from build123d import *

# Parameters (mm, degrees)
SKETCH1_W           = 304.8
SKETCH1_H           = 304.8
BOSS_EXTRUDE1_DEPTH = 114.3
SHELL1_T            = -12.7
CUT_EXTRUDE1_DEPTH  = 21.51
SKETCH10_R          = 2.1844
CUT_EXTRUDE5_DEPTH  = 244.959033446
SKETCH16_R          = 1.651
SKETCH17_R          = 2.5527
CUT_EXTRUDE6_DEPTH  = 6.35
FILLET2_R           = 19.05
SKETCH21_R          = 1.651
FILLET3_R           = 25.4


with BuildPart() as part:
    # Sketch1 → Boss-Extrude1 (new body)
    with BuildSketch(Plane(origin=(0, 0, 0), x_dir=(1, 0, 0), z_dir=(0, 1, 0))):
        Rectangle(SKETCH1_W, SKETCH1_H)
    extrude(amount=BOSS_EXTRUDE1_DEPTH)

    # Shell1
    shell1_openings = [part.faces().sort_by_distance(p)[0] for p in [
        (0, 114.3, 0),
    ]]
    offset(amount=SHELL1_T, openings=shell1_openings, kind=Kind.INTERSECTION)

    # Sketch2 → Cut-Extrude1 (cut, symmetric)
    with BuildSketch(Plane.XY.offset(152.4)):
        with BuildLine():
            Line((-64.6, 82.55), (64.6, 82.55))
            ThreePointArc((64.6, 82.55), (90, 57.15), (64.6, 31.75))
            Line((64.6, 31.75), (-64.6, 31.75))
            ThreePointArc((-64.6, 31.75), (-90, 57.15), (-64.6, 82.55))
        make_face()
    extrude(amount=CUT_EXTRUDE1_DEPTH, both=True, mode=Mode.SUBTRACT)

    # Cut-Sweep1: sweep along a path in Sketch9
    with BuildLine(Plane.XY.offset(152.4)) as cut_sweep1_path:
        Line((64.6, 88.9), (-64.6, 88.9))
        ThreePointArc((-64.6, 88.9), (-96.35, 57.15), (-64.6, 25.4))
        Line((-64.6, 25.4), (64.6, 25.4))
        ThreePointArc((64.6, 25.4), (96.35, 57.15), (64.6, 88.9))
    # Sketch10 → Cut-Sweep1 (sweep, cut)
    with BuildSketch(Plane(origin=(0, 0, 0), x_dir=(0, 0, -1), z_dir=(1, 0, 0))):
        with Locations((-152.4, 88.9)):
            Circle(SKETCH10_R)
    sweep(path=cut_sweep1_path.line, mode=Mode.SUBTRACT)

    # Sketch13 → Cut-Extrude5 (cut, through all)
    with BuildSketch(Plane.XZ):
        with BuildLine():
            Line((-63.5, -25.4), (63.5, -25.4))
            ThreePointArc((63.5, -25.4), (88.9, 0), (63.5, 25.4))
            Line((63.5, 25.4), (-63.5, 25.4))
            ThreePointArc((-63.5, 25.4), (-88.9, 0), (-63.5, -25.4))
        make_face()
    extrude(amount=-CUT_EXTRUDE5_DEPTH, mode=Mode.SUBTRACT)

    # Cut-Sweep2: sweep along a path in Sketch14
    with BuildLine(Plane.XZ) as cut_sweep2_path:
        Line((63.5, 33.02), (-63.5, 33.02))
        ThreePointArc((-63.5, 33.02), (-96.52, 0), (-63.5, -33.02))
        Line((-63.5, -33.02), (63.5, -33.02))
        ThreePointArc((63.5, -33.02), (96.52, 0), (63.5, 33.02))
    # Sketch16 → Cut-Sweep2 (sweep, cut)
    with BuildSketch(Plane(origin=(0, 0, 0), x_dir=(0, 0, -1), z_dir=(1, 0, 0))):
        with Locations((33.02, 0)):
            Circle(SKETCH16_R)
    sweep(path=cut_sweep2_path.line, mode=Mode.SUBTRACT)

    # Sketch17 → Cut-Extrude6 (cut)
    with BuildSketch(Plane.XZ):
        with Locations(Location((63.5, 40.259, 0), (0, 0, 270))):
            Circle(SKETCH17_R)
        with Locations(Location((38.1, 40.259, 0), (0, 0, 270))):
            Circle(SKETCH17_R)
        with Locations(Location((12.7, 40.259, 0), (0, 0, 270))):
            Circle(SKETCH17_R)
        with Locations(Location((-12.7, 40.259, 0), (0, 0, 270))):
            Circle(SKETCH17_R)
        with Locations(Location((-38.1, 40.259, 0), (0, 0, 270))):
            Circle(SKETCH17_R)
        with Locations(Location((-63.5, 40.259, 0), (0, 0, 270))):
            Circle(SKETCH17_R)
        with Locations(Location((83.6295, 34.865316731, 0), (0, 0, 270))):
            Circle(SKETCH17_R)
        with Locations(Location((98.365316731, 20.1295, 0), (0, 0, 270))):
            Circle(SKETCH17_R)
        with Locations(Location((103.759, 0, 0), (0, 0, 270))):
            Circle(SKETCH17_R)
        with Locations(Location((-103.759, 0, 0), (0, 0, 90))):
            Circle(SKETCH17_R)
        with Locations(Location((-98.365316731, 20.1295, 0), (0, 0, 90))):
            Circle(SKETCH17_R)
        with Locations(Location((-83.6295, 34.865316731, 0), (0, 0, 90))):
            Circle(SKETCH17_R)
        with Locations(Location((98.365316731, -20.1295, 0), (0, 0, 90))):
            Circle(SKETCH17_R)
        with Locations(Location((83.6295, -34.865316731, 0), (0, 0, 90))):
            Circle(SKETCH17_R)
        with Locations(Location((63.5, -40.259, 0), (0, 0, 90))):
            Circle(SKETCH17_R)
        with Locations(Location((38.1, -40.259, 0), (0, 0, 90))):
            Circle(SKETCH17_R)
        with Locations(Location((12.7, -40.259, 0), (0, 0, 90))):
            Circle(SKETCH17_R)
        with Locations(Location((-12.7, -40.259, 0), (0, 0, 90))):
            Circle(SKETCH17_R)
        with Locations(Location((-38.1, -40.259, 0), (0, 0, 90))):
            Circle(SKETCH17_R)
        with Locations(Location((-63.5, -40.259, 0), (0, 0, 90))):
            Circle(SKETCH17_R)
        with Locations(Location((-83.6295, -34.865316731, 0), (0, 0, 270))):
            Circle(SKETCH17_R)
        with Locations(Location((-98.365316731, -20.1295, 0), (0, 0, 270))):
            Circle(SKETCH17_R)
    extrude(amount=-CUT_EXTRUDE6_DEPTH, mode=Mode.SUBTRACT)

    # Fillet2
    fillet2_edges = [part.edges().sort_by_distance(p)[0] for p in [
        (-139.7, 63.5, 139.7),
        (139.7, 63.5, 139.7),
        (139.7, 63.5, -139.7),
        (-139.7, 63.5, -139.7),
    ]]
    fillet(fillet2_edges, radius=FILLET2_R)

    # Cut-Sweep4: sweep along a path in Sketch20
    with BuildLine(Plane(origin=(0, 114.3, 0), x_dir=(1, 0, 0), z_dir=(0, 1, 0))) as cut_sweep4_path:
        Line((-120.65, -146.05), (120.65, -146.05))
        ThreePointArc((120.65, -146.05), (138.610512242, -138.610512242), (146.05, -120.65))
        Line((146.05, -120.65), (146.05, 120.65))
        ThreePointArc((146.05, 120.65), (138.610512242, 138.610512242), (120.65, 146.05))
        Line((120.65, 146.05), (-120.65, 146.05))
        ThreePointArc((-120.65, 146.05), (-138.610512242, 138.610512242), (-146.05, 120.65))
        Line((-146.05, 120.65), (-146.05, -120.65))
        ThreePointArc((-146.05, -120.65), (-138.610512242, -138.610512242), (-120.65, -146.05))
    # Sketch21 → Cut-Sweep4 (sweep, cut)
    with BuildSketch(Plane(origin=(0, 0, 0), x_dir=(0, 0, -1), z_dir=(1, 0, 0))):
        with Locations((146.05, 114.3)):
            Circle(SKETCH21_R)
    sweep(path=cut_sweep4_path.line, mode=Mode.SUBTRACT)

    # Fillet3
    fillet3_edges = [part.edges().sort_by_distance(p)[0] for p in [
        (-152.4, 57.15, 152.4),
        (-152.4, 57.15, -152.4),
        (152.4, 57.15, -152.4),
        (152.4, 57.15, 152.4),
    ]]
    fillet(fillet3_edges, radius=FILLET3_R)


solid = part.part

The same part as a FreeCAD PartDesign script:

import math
import FreeCAD as App
import Part
import Sketcher

V = App.Vector
Q = App.Units.Quantity


def edges_at(feature, points):
    """Names of the edges that pass closest to the given points."""
    edges = feature.Shape.Edges
    near = lambda p: min(range(len(edges)), key=lambda i: edges[i].distToShape(Part.Vertex(*p))[0])
    return sorted({f"Edge{near(p) + 1}" for p in points})


def faces_at(feature, points):
    """Names of the faces that lie closest to the given points."""
    faces = feature.Shape.Faces
    near = lambda p: min(range(len(faces)), key=lambda i: faces[i].distToShape(Part.Vertex(*p))[0])
    return sorted({f"Face{near(p) + 1}" for p in points})

doc = App.newDocument("Part")
body = doc.addObject("PartDesign::Body", "Body")

# Sketch on XZ plane
sketch1 = body.newObject("Sketcher::SketchObject", "Sketch")
sketch1.AttachmentSupport = (doc.getObject("XZ_Plane"), [""])
sketch1.MapMode = "FlatFace"
sketch1.addGeometry([
    Part.LineSegment(V(-152.4, -152.4, 0), V(-152.4, 152.4, 0)),
    Part.LineSegment(V(-152.4, 152.4, 0), V(152.4, 152.4, 0)),
    Part.LineSegment(V(152.4, 152.4, 0), V(152.4, -152.4, 0)),
    Part.LineSegment(V(152.4, -152.4, 0), V(-152.4, -152.4, 0)),
], False)
sketch1.addConstraint([
    Sketcher.Constraint("Coincident", 0, 2, 1, 1),
    Sketcher.Constraint("Coincident", 1, 2, 2, 1),
    Sketcher.Constraint("Coincident", 2, 2, 3, 1),
    Sketcher.Constraint("Coincident", 3, 2, 0, 1),
    Sketcher.Constraint("Vertical", 0),
    Sketcher.Constraint("Horizontal", 1),
    Sketcher.Constraint("Vertical", 2),
    Sketcher.Constraint("Horizontal", 3),
    Sketcher.Constraint("Symmetric", 0, 2, 2, 2, -1, 1),
    Sketcher.Constraint("Equal", 3, 0),
    Sketcher.Constraint("DistanceX", 1, 1, 1, 2, Q("12 in")),
])
pad1 = body.newObject("PartDesign::Pad", "Pad")
pad1.Profile = sketch1
pad1.Length = Q("4.5 in")
pad1.Reversed = True
doc.recompute()

thickness = body.newObject("PartDesign::Thickness", "Thickness")
thickness.Base = (pad1, faces_at(pad1, [(0, 114.3, 0)]))
thickness.Value = Q("0.5 in")
thickness.Reversed = True
thickness.Join = "Intersection"

# Sketch on XY plane
sketch2 = body.newObject("Sketcher::SketchObject", "Sketch001")
sketch2.AttachmentSupport = (doc.getObject("XY_Plane"), [""])
sketch2.MapMode = "FlatFace"
sketch2.AttachmentOffset = App.Placement(V(0, 0, 6 * 25.4), App.Rotation())
sketch2.addGeometry([
    Part.LineSegment(V(64.6, 82.55, 0), V(-64.6, 82.55, 0)),
    Part.ArcOfCircle(Part.Circle(V(-64.6, 57.15, 0), V(0, 0, 1), 25.4), math.radians(90), math.radians(270)),
    Part.LineSegment(V(-64.6, 31.75, 0), V(64.6, 31.75, 0)),
    Part.ArcOfCircle(Part.Circle(V(64.6, 57.15, 0), V(0, 0, 1), 25.4), math.radians(-90), math.radians(90)),
], False)
sketch2.addConstraint([
    Sketcher.Constraint("Tangent", 0, 2, 1, 1),
    Sketcher.Constraint("Tangent", 1, 2, 2, 1),
    Sketcher.Constraint("Tangent", 2, 2, 3, 1),
    Sketcher.Constraint("Tangent", 3, 2, 0, 1),
    Sketcher.Constraint("Horizontal", 0),
    Sketcher.Constraint("Horizontal", 2),
    Sketcher.Constraint("Radius", 1, Q("1 in")),
    Sketcher.Constraint("DistanceY", -1, 1, 1, 3, Q("2.25 in")),
    Sketcher.Constraint("DistanceX", 0, 2, 0, 1, Q("129.2 mm")),
    Sketcher.Constraint("DistanceX", 1, 3, -1, 1, Q("64.6 mm")),
])
pocket1 = body.newObject("PartDesign::Pocket", "Pocket")
pocket1.Profile = sketch2
pocket1.Length = 43.02
pocket1.Midplane = True

# Sketch on YZ plane
sketch3 = body.newObject("Sketcher::SketchObject", "Sketch002")
sketch3.AttachmentSupport = (doc.getObject("YZ_Plane"), [""])
sketch3.MapMode = "FlatFace"
sketch3.addGeometry(Part.Circle(V(88.9, 152.4, 0), V(0, 0, 1), 2.1844), False)
sketch3.addConstraint([
    Sketcher.Constraint("Diameter", 0, Q("0.172 in")),
    Sketcher.Constraint("DistanceY", -1, 1, 0, 3, Q("6 in")),
    Sketcher.Constraint("DistanceX", -1, 1, 0, 3, Q("3.5 in")),
])

# Sketch on XY plane
sketch4 = body.newObject("Sketcher::SketchObject", "Sketch003")
sketch4.AttachmentSupport = (doc.getObject("XY_Plane"), [""])
sketch4.MapMode = "FlatFace"
sketch4.AttachmentOffset = App.Placement(V(0, 0, 6 * 25.4), App.Rotation())
sketch4.addGeometry([
    Part.LineSegment(V(64.6, 88.9, 0), V(-64.6, 88.9, 0)),
    Part.ArcOfCircle(Part.Circle(V(-64.6, 57.15, 0), V(0, 0, 1), 31.75), math.radians(90), math.radians(270)),
    Part.LineSegment(V(-64.6, 25.4, 0), V(64.6, 25.4, 0)),
    Part.ArcOfCircle(Part.Circle(V(64.6, 57.15, 0), V(0, 0, 1), 31.75), math.radians(-90), math.radians(90)),
], False)
sketch4.addConstraint([
    Sketcher.Constraint("Tangent", 0, 2, 1, 1),
    Sketcher.Constraint("Tangent", 1, 2, 2, 1),
    Sketcher.Constraint("Tangent", 2, 2, 3, 1),
    Sketcher.Constraint("Tangent", 3, 2, 0, 1),
    Sketcher.Constraint("Horizontal", 0),
    Sketcher.Constraint("Horizontal", 2),
    Sketcher.Constraint("Radius", 1, Q("1.25 in")),
    Sketcher.Constraint("DistanceY", -1, 1, 1, 2, Q("1 in")),
    Sketcher.Constraint("DistanceX", 0, 2, 0, 1, Q("129.2 mm")),
    Sketcher.Constraint("DistanceX", 1, 3, -1, 1, Q("64.6 mm")),
])
doc.recompute()

subtractivepipe = body.newObject("PartDesign::SubtractivePipe", "SubtractivePipe")
subtractivepipe.Profile = sketch3
subtractivepipe.Spine = (sketch4, ["Edge1", "Edge2", "Edge3", "Edge4"])

# Sketch on XZ plane
sketch5 = body.newObject("Sketcher::SketchObject", "Sketch004")
sketch5.AttachmentSupport = (doc.getObject("XZ_Plane"), [""])
sketch5.MapMode = "FlatFace"
sketch5.addGeometry([
    Part.LineSegment(V(-63.5, -25.4, 0), V(63.5, -25.4, 0)),
    Part.ArcOfCircle(Part.Circle(V(63.5, 0, 0), V(0, 0, 1), 25.4), math.radians(-90), math.radians(90)),
    Part.LineSegment(V(63.5, 25.4, 0), V(-63.5, 25.4, 0)),
    Part.ArcOfCircle(Part.Circle(V(-63.5, 0, 0), V(0, 0, 1), 25.4), math.radians(90), math.radians(270)),
], False)
sketch5.addConstraint([
    Sketcher.Constraint("Tangent", 0, 2, 1, 1),
    Sketcher.Constraint("Tangent", 1, 2, 2, 1),
    Sketcher.Constraint("Tangent", 2, 2, 3, 1),
    Sketcher.Constraint("Tangent", 3, 2, 0, 1),
    Sketcher.Constraint("Horizontal", 0),
    Sketcher.Constraint("Horizontal", 2),
    Sketcher.Constraint("Symmetric", 1, 3, 3, 3, -1, 1),
    Sketcher.Constraint("Radius", 1, Q("1 in")),
    Sketcher.Constraint("DistanceX", 0, 1, 0, 2, Q("5 in")),
])
pocket2 = body.newObject("PartDesign::Pocket", "Pocket001")
pocket2.Profile = sketch5
pocket2.Type = "ThroughAll"

# Sketch on YZ plane
sketch6 = body.newObject("Sketcher::SketchObject", "Sketch005")
sketch6.AttachmentSupport = (doc.getObject("YZ_Plane"), [""])
sketch6.MapMode = "FlatFace"
sketch6.addGeometry(Part.Circle(V(0, -33.02, 0), V(0, 0, 1), 1.651), False)
sketch6.addConstraint([
    Sketcher.Constraint("PointOnObject", 0, 3, -2),
    Sketcher.Constraint("Diameter", 0, Q("0.13 in")),
    Sketcher.Constraint("DistanceY", 0, 3, -1, 1, Q("1.3 in")),
])

# Sketch on XZ plane
sketch7 = body.newObject("Sketcher::SketchObject", "Sketch006")
sketch7.AttachmentSupport = (doc.getObject("XZ_Plane"), [""])
sketch7.MapMode = "FlatFace"
sketch7.addGeometry([
    Part.LineSegment(V(63.5, 33.02, 0), V(-63.5, 33.02, 0)),
    Part.ArcOfCircle(Part.Circle(V(-63.5, 0, 0), V(0, 0, 1), 33.02), math.radians(90), math.radians(270)),
    Part.LineSegment(V(-63.5, -33.02, 0), V(63.5, -33.02, 0)),
    Part.ArcOfCircle(Part.Circle(V(63.5, 0, 0), V(0, 0, 1), 33.02), math.radians(-90), math.radians(90)),
], False)
sketch7.addConstraint([
    Sketcher.Constraint("Tangent", 0, 2, 1, 1),
    Sketcher.Constraint("Tangent", 1, 2, 2, 1),
    Sketcher.Constraint("Tangent", 2, 2, 3, 1),
    Sketcher.Constraint("Tangent", 3, 2, 0, 1),
    Sketcher.Constraint("Horizontal", 0),
    Sketcher.Constraint("Horizontal", 2),
    Sketcher.Constraint("Symmetric", 1, 3, 3, 3, -1, 1),
    Sketcher.Constraint("Radius", 1, Q("1.3 in")),
    Sketcher.Constraint("DistanceX", 0, 2, 0, 1, Q("5 in")),
])
doc.recompute()

subtractivepipe2 = body.newObject("PartDesign::SubtractivePipe", "SubtractivePipe001")
subtractivepipe2.Profile = sketch6
subtractivepipe2.Spine = (sketch7, ["Edge1", "Edge2", "Edge3", "Edge4"])

# Sketch on XZ plane
sketch8 = body.newObject("Sketcher::SketchObject", "Sketch007")
sketch8.AttachmentSupport = (doc.getObject("XZ_Plane"), [""])
sketch8.MapMode = "FlatFace"
sketch8.addGeometry([
    Part.Circle(V(63.5, 40.259, 0), V(0, 0, 1), 2.5527),  # 0
    Part.Circle(V(38.1, 40.259, 0), V(0, 0, 1), 2.5527),  # 1
    Part.Circle(V(12.7, 40.259, 0), V(0, 0, 1), 2.5527),  # 2
    Part.Circle(V(-12.7, 40.259, 0), V(0, 0, 1), 2.5527),  # 3
    Part.Circle(V(-38.1, 40.259, 0), V(0, 0, 1), 2.5527),  # 4
    Part.Circle(V(-63.5, 40.259, 0), V(0, 0, 1), 2.5527),  # 5
    Part.Circle(V(83.6295, 34.865317, 0), V(0, 0, 1), 2.5527),  # 6
    Part.Circle(V(98.365317, 20.1295, 0), V(0, 0, 1), 2.5527),  # 7
    Part.Circle(V(103.759, 0, 0), V(0, 0, 1), 2.5527),  # 8
    Part.Circle(V(-103.759, 0, 0), V(0, 0, 1), 2.5527),  # 9
    Part.Circle(V(-98.365317, 20.1295, 0), V(0, 0, 1), 2.5527),  # 10
    Part.Circle(V(-83.6295, 34.865317, 0), V(0, 0, 1), 2.5527),  # 11
    Part.Circle(V(98.365317, -20.1295, 0), V(0, 0, 1), 2.5527),  # 12
    Part.Circle(V(83.6295, -34.865317, 0), V(0, 0, 1), 2.5527),  # 13
    Part.Circle(V(63.5, -40.259, 0), V(0, 0, 1), 2.5527),  # 14
    Part.Circle(V(38.1, -40.259, 0), V(0, 0, 1), 2.5527),  # 15
    Part.Circle(V(12.7, -40.259, 0), V(0, 0, 1), 2.5527),  # 16
    Part.Circle(V(-12.7, -40.259, 0), V(0, 0, 1), 2.5527),  # 17
    Part.Circle(V(-38.1, -40.259, 0), V(0, 0, 1), 2.5527),  # 18
    Part.Circle(V(-63.5, -40.259, 0), V(0, 0, 1), 2.5527),  # 19
    Part.Circle(V(-83.6295, -34.865317, 0), V(0, 0, 1), 2.5527),  # 20
    Part.Circle(V(-98.365317, -20.1295, 0), V(0, 0, 1), 2.5527),  # 21
], False)
sketch8.addConstraint([
    Sketcher.Constraint("Equal", 0, 1),
    Sketcher.Constraint("Equal", 1, 2),
    Sketcher.Constraint("Equal", 2, 3),
    Sketcher.Constraint("Equal", 3, 4),
    Sketcher.Constraint("Equal", 4, 5),
    Sketcher.Constraint("Equal", 5, 6),
    Sketcher.Constraint("Equal", 6, 7),
    Sketcher.Constraint("Equal", 7, 8),
    Sketcher.Constraint("Equal", 8, 9),
    Sketcher.Constraint("Equal", 9, 10),
    Sketcher.Constraint("Equal", 10, 11),
    Sketcher.Constraint("Equal", 11, 12),
    Sketcher.Constraint("Equal", 12, 13),
    Sketcher.Constraint("Equal", 13, 14),
    Sketcher.Constraint("Equal", 14, 15),
    Sketcher.Constraint("Equal", 15, 16),
    Sketcher.Constraint("Equal", 16, 17),
    Sketcher.Constraint("Equal", 17, 18),
    Sketcher.Constraint("Equal", 18, 19),
    Sketcher.Constraint("Equal", 19, 20),
    Sketcher.Constraint("Equal", 20, 21),
    Sketcher.Constraint("Symmetric", 8, 3, 9, 3, -1, 1),
    Sketcher.Constraint("Symmetric", 10, 3, 12, 3, -1, 1),
    Sketcher.Constraint("Symmetric", 11, 3, 13, 3, -1, 1),
    Sketcher.Constraint("Symmetric", 5, 3, 14, 3, -1, 1),
    Sketcher.Constraint("Symmetric", 4, 3, 15, 3, -1, 1),
    Sketcher.Constraint("Symmetric", 3, 3, 16, 3, -1, 1),
    Sketcher.Constraint("Symmetric", 2, 3, 17, 3, -1, 1),
    Sketcher.Constraint("Symmetric", 1, 3, 18, 3, -1, 1),
    Sketcher.Constraint("Symmetric", 0, 3, 19, 3, -1, 1),
    Sketcher.Constraint("Symmetric", 6, 3, 20, 3, -1, 1),
    Sketcher.Constraint("Symmetric", 7, 3, 21, 3, -1, 1),
    Sketcher.Constraint("Symmetric", 2, 3, 3, 3, -2),
    Sketcher.Constraint("Symmetric", 1, 3, 4, 3, -2),
    Sketcher.Constraint("Symmetric", 0, 3, 5, 3, -2),
    Sketcher.Constraint("Symmetric", 7, 3, 10, 3, -2),
    Sketcher.Constraint("Symmetric", 6, 3, 11, 3, -2),
    Sketcher.Constraint("PointOnObject", 8, 3, -1),
    Sketcher.Constraint("Horizontal", 0, 3, 1, 3),
    Sketcher.Constraint("Horizontal", 1, 3, 2, 3),
    Sketcher.Constraint("Diameter", 0, Q("0.201 in")),
    Sketcher.Constraint("DistanceX", 1, 3, 0, 3, Q("1 in")),
    Sketcher.Constraint("DistanceX", 2, 3, 1, 3, Q("1 in")),
    Sketcher.Constraint("DistanceX", 3, 3, 2, 3, Q("1 in")),
    Sketcher.Constraint("DistanceY", 15, 3, 1, 3, Q("3.17 in")),
    Sketcher.Constraint("DistanceX", -1, 1, 8, 3, Q("4.085 in")),
    Sketcher.Constraint("DistanceY", 12, 3, 7, 3, Q("1.585 in")),
    Sketcher.Constraint("DistanceX", -1, 1, 6, 3, Q("3.2925 in")),
    Sketcher.Constraint("DistanceY", -1, 1, 6, 3, Q("34.865317 mm")),
    Sketcher.Constraint("DistanceX", -1, 1, 7, 3, Q("98.365317 mm")),
])
pocket3 = body.newObject("PartDesign::Pocket", "Pocket002")
pocket3.Profile = sketch8
pocket3.Length = Q("0.25 in")
doc.recompute()

fillet = body.newObject("PartDesign::Fillet", "Fillet")
fillet.Base = (pocket3, edges_at(pocket3, [
    (-139.7, 63.5, 139.7),
    (139.7, 63.5, 139.7),
    (139.7, 63.5, -139.7),
    (-139.7, 63.5, -139.7),
]))
fillet.Radius = Q("0.75 in")

# Sketch on YZ plane
sketch9 = body.newObject("Sketcher::SketchObject", "Sketch008")
sketch9.AttachmentSupport = (doc.getObject("YZ_Plane"), [""])
sketch9.MapMode = "FlatFace"
sketch9.addGeometry(Part.Circle(V(114.3, -146.05, 0), V(0, 0, 1), 1.651), False)
sketch9.addConstraint([
    Sketcher.Constraint("Diameter", 0, Q("0.13 in")),
    Sketcher.Constraint("DistanceX", -1, 1, 0, 3, Q("4.5 in")),
    Sketcher.Constraint("DistanceY", 0, 3, -1, 1, Q("5.75 in")),
])

# Sketch on XZ plane
sketch10 = body.newObject("Sketcher::SketchObject", "Sketch009")
sketch10.AttachmentSupport = (doc.getObject("XZ_Plane"), [""])
sketch10.MapMode = "FlatFace"
sketch10.AttachmentOffset = App.Placement(V(0, 0, -4.5 * 25.4), App.Rotation())
sketch10.addGeometry([
    Part.LineSegment(V(-120.65, 146.05, 0), V(120.65, 146.05, 0)),  # 0
    Part.ArcOfCircle(Part.Circle(V(120.65, 120.65, 0), V(0, 0, 1), 25.4), math.radians(0), math.radians(90)),  # 1
    Part.LineSegment(V(146.05, 120.65, 0), V(146.05, -120.65, 0)),  # 2
    Part.ArcOfCircle(Part.Circle(V(120.65, -120.65, 0), V(0, 0, 1), 25.4), math.radians(-90), math.radians(0)),  # 3
    Part.LineSegment(V(120.65, -146.05, 0), V(-120.65, -146.05, 0)),  # 4
    Part.ArcOfCircle(Part.Circle(V(-120.65, -120.65, 0), V(0, 0, 1), 25.4), math.radians(180), math.radians(270)),  # 5
    Part.LineSegment(V(-146.05, -120.65, 0), V(-146.05, 120.65, 0)),  # 6
    Part.ArcOfCircle(Part.Circle(V(-120.65, 120.65, 0), V(0, 0, 1), 25.4), math.radians(90), math.radians(180)),  # 7
], False)
sketch10.addConstraint([
    Sketcher.Constraint("Tangent", 0, 2, 1, 2),
    Sketcher.Constraint("Tangent", 1, 1, 2, 1),
    Sketcher.Constraint("Tangent", 2, 2, 3, 2),
    Sketcher.Constraint("Tangent", 3, 1, 4, 1),
    Sketcher.Constraint("Tangent", 4, 2, 5, 2),
    Sketcher.Constraint("Tangent", 5, 1, 6, 1),
    Sketcher.Constraint("Tangent", 6, 2, 7, 2),
    Sketcher.Constraint("Tangent", 7, 1, 0, 1),
    Sketcher.Constraint("Horizontal", 0),
    Sketcher.Constraint("Vertical", 2),
    Sketcher.Constraint("Horizontal", 4),
    Sketcher.Constraint("Vertical", 6),
    Sketcher.Constraint("Equal", 1, 3),
    Sketcher.Constraint("Equal", 3, 5),
    Sketcher.Constraint("Equal", 5, 7),
    Sketcher.Constraint("Symmetric", 1, 3, 5, 3, -1, 1),
    Sketcher.Constraint("Equal", 4, 2),
    Sketcher.Constraint("Radius", 1, Q("1 in")),
    Sketcher.Constraint("DistanceX", 0, 1, 0, 2, Q("9.5 in")),
])
doc.recompute()

subtractivepipe3 = body.newObject("PartDesign::SubtractivePipe", "SubtractivePipe002")
subtractivepipe3.Profile = sketch9
subtractivepipe3.Spine = (sketch10, ["Edge1", "Edge2", "Edge3", "Edge4", "Edge5", "Edge6", "Edge7", "Edge8"])
doc.recompute()

fillet2 = body.newObject("PartDesign::Fillet", "Fillet001")
fillet2.Base = (subtractivepipe3, edges_at(subtractivepipe3, [
    (-152.4, 57.15, 152.4),
    (-152.4, 57.15, -152.4),
    (152.4, 57.15, -152.4),
    (152.4, 57.15, 152.4),
]))
fillet2.Radius = Q("1 in")

doc.recompute()
